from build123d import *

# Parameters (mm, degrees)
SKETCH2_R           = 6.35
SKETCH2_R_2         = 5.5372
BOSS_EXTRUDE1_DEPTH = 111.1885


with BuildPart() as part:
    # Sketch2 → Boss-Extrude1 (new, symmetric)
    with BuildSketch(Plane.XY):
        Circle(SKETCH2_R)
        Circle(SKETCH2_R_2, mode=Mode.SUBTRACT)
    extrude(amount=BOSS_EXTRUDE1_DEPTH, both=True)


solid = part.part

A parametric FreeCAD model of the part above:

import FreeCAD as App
import Part
import Sketcher
from FreeCAD import Vector
Q = App.Units.Quantity

doc = App.newDocument("Part")
params = doc.addObject("Spreadsheet::Sheet", "Params")
for row, (alias, value) in enumerate([
    ("sketch1_diameter", "0.5 in"),
    ("sketch1_diameter2", "0.436 in"),
    ("pad1_length", "8.755 in"),
], start=1):
    params.set(f"A{row}", alias)
    params.set(f"B{row}", "=" + value)
    params.setAlias(f"B{row}", alias)

body = doc.addObject("PartDesign::Body", "Body")

# Sketch on XY plane
sketch1 = body.newObject("Sketcher::SketchObject", "Sketch")
sketch1.AttachmentSupport = (doc.getObject("XY_Plane"), [""])
sketch1.MapMode = "FlatFace"
sketch1.addGeometry([
    Part.Circle(Vector(0, 0, 0), Vector(0, 0, 1), 6),
    Part.Circle(Vector(0, 0, 0), Vector(0, 0, 1), 6),
], False)
sketch1.addConstraint([
    Sketcher.Constraint("Coincident", 0, 3, -1, 1),
    Sketcher.Constraint("Coincident", 1, 3, -1, 1),
    Sketcher.Constraint("Diameter", 0, Q("0.5 in")),
    Sketcher.Constraint("Diameter", 1, Q("0.436 in")),
])
sketch1.setExpression("Constraints[2]", "Params.sketch1_diameter")
sketch1.setExpression("Constraints[3]", "Params.sketch1_diameter2")
pad1 = body.newObject("PartDesign::Pad", "Pad")
pad1.Profile = sketch1
pad1.setExpression("Length", "Params.pad1_length")
pad1.Midplane = True

doc.recompute()
